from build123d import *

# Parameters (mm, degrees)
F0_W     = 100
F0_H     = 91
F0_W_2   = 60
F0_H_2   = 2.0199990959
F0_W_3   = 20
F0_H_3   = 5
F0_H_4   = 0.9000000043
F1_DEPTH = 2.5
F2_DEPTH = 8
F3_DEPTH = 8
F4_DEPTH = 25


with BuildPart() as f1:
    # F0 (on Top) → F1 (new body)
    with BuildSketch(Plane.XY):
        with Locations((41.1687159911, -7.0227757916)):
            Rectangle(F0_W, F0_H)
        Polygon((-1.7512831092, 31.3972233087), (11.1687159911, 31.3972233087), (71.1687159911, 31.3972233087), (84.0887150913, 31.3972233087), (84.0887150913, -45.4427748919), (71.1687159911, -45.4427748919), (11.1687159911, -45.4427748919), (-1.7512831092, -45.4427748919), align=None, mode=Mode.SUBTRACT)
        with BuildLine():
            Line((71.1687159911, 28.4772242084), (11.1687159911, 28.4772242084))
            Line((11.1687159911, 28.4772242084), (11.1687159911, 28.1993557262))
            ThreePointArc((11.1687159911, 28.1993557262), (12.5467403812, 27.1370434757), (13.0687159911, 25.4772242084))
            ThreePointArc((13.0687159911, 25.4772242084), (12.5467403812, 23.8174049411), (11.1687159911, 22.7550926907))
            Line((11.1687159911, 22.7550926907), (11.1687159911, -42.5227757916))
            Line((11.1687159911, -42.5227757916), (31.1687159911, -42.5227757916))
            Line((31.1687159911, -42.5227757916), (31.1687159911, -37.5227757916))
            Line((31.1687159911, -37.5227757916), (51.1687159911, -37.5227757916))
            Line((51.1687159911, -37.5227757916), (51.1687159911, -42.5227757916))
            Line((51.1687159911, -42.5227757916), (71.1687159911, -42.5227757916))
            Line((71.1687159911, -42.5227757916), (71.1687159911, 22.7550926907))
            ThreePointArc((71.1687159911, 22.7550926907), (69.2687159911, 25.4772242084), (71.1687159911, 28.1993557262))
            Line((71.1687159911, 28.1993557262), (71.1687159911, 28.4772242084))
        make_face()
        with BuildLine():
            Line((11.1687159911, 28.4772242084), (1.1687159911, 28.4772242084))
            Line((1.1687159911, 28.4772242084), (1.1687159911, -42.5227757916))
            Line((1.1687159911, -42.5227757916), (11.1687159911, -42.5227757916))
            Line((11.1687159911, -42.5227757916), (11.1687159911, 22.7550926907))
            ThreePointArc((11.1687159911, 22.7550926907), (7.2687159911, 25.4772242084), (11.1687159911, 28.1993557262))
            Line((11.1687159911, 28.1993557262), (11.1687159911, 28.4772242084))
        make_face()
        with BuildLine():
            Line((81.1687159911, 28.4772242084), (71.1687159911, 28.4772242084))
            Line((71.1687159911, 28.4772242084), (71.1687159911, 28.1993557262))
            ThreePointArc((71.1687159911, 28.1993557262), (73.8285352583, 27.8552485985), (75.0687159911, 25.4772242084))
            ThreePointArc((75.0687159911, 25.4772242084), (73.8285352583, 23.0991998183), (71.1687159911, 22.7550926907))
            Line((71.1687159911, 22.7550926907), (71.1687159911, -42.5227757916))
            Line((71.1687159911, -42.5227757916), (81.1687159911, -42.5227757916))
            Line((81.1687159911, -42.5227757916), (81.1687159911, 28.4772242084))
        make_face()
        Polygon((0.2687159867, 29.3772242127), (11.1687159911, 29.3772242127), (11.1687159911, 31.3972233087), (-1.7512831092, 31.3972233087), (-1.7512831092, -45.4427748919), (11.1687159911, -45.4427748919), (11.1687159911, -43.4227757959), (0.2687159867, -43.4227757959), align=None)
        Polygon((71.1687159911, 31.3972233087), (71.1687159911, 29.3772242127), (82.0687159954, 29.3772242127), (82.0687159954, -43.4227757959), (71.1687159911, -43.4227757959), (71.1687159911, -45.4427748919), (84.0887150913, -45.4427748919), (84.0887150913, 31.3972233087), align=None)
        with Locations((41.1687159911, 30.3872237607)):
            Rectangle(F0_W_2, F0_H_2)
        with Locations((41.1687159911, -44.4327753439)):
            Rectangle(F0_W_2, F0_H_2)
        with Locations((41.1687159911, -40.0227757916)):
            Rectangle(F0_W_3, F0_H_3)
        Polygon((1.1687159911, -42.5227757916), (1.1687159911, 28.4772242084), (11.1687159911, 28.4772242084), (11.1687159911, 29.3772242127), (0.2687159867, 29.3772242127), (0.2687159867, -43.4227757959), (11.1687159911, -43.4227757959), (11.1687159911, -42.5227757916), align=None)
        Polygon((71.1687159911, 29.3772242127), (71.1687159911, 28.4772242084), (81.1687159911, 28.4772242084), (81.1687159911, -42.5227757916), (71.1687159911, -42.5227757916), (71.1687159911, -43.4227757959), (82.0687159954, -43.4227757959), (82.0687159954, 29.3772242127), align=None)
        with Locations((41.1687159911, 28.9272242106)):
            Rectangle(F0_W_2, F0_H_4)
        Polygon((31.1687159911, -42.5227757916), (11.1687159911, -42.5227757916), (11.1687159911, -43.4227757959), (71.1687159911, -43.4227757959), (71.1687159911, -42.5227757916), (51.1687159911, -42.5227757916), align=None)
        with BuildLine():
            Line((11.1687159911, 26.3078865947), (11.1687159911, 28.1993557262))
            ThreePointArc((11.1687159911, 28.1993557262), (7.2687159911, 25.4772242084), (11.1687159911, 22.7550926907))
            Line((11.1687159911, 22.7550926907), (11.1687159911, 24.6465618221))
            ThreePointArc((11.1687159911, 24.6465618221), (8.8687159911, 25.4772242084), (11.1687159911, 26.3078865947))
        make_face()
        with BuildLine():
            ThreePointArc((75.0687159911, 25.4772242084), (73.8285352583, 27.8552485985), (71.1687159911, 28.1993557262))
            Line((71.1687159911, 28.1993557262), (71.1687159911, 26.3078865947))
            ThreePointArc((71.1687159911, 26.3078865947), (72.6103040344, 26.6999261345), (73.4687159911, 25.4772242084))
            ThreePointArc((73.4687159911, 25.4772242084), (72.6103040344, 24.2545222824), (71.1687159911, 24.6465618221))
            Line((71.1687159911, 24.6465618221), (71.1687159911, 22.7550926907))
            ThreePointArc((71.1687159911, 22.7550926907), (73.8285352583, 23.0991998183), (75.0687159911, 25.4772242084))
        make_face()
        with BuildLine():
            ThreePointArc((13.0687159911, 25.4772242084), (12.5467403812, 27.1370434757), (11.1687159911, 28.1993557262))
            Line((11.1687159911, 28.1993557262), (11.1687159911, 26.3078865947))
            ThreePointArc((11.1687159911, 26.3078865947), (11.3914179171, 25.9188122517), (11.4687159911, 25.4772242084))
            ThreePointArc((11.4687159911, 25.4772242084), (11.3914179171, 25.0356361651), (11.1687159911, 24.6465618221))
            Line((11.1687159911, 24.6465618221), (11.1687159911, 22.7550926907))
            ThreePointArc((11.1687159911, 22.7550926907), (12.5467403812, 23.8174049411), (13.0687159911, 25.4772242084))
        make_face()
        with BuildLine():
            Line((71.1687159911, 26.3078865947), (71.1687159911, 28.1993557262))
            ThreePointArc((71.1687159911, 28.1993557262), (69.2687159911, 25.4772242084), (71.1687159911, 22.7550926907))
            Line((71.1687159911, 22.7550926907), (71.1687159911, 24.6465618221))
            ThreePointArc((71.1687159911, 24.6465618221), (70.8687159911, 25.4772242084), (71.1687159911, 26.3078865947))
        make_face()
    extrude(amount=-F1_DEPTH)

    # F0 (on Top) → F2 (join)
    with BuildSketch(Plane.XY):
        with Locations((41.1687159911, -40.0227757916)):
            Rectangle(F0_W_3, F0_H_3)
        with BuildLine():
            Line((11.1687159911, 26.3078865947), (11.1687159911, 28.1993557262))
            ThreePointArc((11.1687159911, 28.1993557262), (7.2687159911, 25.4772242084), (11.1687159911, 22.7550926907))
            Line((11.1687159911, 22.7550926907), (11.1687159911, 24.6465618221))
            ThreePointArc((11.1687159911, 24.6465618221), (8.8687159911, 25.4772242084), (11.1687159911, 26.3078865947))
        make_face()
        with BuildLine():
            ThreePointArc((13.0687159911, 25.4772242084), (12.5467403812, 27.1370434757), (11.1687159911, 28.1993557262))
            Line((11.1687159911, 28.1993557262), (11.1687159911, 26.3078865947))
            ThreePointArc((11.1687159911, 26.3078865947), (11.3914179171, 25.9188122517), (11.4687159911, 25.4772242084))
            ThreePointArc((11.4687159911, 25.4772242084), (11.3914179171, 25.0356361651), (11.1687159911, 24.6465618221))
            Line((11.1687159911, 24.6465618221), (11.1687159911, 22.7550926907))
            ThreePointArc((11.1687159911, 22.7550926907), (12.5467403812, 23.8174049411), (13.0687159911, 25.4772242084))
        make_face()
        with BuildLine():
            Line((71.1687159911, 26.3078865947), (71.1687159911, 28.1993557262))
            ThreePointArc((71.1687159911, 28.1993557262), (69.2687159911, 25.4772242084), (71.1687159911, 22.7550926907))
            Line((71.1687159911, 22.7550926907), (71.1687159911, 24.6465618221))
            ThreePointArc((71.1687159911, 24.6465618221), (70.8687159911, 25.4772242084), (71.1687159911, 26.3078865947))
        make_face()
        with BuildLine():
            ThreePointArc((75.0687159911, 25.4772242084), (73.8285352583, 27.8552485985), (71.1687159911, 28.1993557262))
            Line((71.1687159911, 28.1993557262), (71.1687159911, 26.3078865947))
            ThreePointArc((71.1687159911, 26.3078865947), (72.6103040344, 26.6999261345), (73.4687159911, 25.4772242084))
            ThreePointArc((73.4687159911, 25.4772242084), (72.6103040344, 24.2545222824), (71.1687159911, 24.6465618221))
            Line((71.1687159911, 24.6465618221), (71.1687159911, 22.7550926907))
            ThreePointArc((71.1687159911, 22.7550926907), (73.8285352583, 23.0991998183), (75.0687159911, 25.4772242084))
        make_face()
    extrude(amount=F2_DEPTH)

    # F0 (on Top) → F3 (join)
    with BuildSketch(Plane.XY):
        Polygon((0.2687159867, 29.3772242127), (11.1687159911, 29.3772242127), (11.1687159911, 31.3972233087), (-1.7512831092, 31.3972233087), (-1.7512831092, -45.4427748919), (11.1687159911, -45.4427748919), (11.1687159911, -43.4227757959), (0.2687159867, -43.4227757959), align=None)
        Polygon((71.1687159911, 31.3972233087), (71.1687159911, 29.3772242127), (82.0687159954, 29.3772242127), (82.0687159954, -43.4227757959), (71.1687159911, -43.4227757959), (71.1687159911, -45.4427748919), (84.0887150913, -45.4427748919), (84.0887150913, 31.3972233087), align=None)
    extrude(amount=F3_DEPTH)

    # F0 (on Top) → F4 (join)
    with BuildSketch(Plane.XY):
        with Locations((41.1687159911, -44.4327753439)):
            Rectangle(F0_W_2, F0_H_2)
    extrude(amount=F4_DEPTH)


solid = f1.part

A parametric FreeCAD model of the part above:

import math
import FreeCAD as App
import Part
import Sketcher

V = App.Vector
Q = App.Units.Quantity

doc = App.newDocument("Part")
body = doc.addObject("PartDesign::Body", "Body")

# Sketch on XY plane
sketch1 = doc.addObject("Sketcher::SketchObject", "Sketch")
body.addObject(sketch1)
sketch1.AttachmentSupport = (doc.XY_Plane, [""])
sketch1.MapMode = "FlatFace"
sketch1.addGeometry(Part.LineSegment(V(-8.8, 38.5, 0), V(-8.8, -52.5, 0)), False)
sketch1.addGeometry(Part.LineSegment(V(-8.8, -52.5, 0), V(91.2, -52.5, 0)), False)
sketch1.addGeometry(Part.LineSegment(V(91.2, -52.5, 0), V(91.2, 38.5, 0)), False)
sketch1.addGeometry(Part.LineSegment(V(91.2, 38.5, 0), V(-8.8, 38.5, 0)), False)
sketch1.addGeometry(Part.ArcOfCircle(Part.Circle(V(10.2, 25.5, 0), V(0, 0, 1), 1.3), math.radians(40), math.radians(320)), False)
sketch1.addGeometry(Part.ArcOfCircle(Part.Circle(V(10.2, 25.5, 0), V(0, 0, 1), 1.3), math.radians(0), math.radians(40)), False)
sketch1.addGeometry(Part.ArcOfCircle(Part.Circle(V(10.2, 25.5, 0), V(0, 0, 1), 1.3), math.radians(-40), math.radians(0)), False)
sketch1.addGeometry(Part.ArcOfCircle(Part.Circle(V(72.2, 25.5, 0), V(0, 0, 1), 1.3), math.radians(0), math.radians(140)), False)
sketch1.addGeometry(Part.ArcOfCircle(Part.Circle(V(72.2, 25.5, 0), V(0, 0, 1), 1.3), math.radians(-140), math.radians(0)), False)
sketch1.addGeometry(Part.ArcOfCircle(Part.Circle(V(72.2, 25.5, 0), V(0, 0, 1), 1.3), math.radians(140), math.radians(220)), False)
sketch1.addConstraint(Sketcher.Constraint("Coincident", 0, 2, 1, 1))
sketch1.addConstraint(Sketcher.Constraint("Coincident", 1, 2, 2, 1))
sketch1.addConstraint(Sketcher.Constraint("Coincident", 2, 2, 3, 1))
sketch1.addConstraint(Sketcher.Constraint("Coincident", 3, 2, 0, 1))
sketch1.addConstraint(Sketcher.Constraint("Tangent", 4, 1, 5, 2))
sketch1.addConstraint(Sketcher.Constraint("Tangent", 5, 1, 6, 2))
sketch1.addConstraint(Sketcher.Constraint("Tangent", 6, 1, 4, 2))
sketch1.addConstraint(Sketcher.Constraint("Tangent", 7, 1, 8, 2))
sketch1.addConstraint(Sketcher.Constraint("Tangent", 8, 1, 9, 2))
sketch1.addConstraint(Sketcher.Constraint("Tangent", 9, 1, 7, 2))
sketch1.addConstraint(Sketcher.Constraint("Vertical", 0))
sketch1.addConstraint(Sketcher.Constraint("Horizontal", 1))
sketch1.addConstraint(Sketcher.Constraint("Vertical", 2))
sketch1.addConstraint(Sketcher.Constraint("Horizontal", 3))
sketch1.addConstraint(Sketcher.Constraint("Equal", 6, 7))
sketch1.addConstraint(Sketcher.Constraint("Horizontal", 6, 3, 7, 3))
sketch1.addConstraint(Sketcher.Constraint("Horizontal", 9, 3, 5, 1))
sketch1.addConstraint(Sketcher.Constraint("Horizontal", 5, 1, 7, 1))
sketch1.addConstraint(Sketcher.Constraint("Horizontal", 6, 1, 8, 1))
sketch1.addConstraint(Sketcher.Constraint("Horizontal", 4, 1, 9, 1))
sketch1.addConstraint(Sketcher.Constraint("Vertical", 4, 1, 6, 1))
sketch1.addConstraint(Sketcher.Constraint("Radius", 4, Q("1.3 mm")))
sketch1.addConstraint(Sketcher.Constraint("DistanceX", 1, 1, 1, 2, Q("100 mm")))
sketch1.addConstraint(Sketcher.Constraint("DistanceY", 0, 2, 0, 1, Q("91 mm")))
sketch1.addConstraint(Sketcher.Constraint("DistanceX", 4, 3, 7, 3, Q("62 mm")))
sketch1.addConstraint(Sketcher.Constraint("DistanceX", 0, 2, 5, 3, Q("19 mm")))
sketch1.addConstraint(Sketcher.Constraint("DistanceY", 0, 2, 5, 3, Q("78 mm")))
sketch1.addConstraint(Sketcher.Constraint("DistanceX", 4, 3, 4, 1, Q("1 mm")))
sketch1.addConstraint(Sketcher.Constraint("DistanceY", -1, 1, 6, 1, Q("24.646562 mm")))
sketch1.addConstraint(Sketcher.Constraint("DistanceX", -1, 1, 4, 3, Q("10.168716 mm")))
pad1 = doc.addObject("PartDesign::Pad", "Pad")
body.addObject(pad1)
pad1.Profile = sketch1
pad1.Length = 2.5
pad1.Reversed = True

# Sketch on XY plane
sketch2 = doc.addObject("Sketcher::SketchObject", "Sketch001")
body.addObject(sketch2)
sketch2.AttachmentSupport = (doc.XY_Plane, [""])
sketch2.MapMode = "FlatFace"
sketch2.addGeometry(Part.LineSegment(V(31.2, -37.5, 0), V(31.2, -42.5, 0)), False)
sketch2.addGeometry(Part.LineSegment(V(31.2, -42.5, 0), V(51.2, -42.5, 0)), False)
sketch2.addGeometry(Part.LineSegment(V(51.2, -42.5, 0), V(51.2, -37.5, 0)), False)
sketch2.addGeometry(Part.LineSegment(V(51.2, -37.5, 0), V(31.2, -37.5, 0)), False)
sketch2.addGeometry(Part.ArcOfCircle(Part.Circle(V(10.2, 25.5, 0), V(0, 0, 1), 2.9), math.radians(70), math.radians(290)), False)
sketch2.addGeometry(Part.ArcOfCircle(Part.Circle(V(10.2, 25.5, 0), V(0, 0, 1), 2.9), math.radians(-70), math.radians(0)), False)
sketch2.addGeometry(Part.ArcOfCircle(Part.Circle(V(10.2, 25.5, 0), V(0, 0, 1), 2.9), math.radians(0), math.radians(70)), False)
sketch2.addGeometry(Part.ArcOfCircle(Part.Circle(V(10.2, 25.5, 0), V(0, 0, 1), 1.3), math.radians(40), math.radians(320)), False)
sketch2.addGeometry(Part.ArcOfCircle(Part.Circle(V(10.2, 25.5, 0), V(0, 0, 1), 1.3), math.radians(0), math.radians(40)), False)
sketch2.addGeometry(Part.ArcOfCircle(Part.Circle(V(10.2, 25.5, 0), V(0, 0, 1), 1.3), math.radians(-40), math.radians(0)), False)
sketch2.addGeometry(Part.ArcOfCircle(Part.Circle(V(72.2, 25.5, 0), V(0, 0, 1), 2.9), math.radians(110), math.radians(250)), False)
sketch2.addGeometry(Part.ArcOfCircle(Part.Circle(V(72.2, 25.5, 0), V(0, 0, 1), 2.9), math.radians(-110), math.radians(0)), False)
sketch2.addGeometry(Part.ArcOfCircle(Part.Circle(V(72.2, 25.5, 0), V(0, 0, 1), 2.9), math.radians(0), math.radians(110)), False)
sketch2.addGeometry(Part.ArcOfCircle(Part.Circle(V(72.2, 25.5, 0), V(0, 0, 1), 1.3), math.radians(140), math.radians(220)), False)
sketch2.addGeometry(Part.ArcOfCircle(Part.Circle(V(72.2, 25.5, 0), V(0, 0, 1), 1.3), math.radians(0), math.radians(140)), False)
sketch2.addGeometry(Part.ArcOfCircle(Part.Circle(V(72.2, 25.5, 0), V(0, 0, 1), 1.3), math.radians(-140), math.radians(0)), False)
sketch2.addConstraint(Sketcher.Constraint("Coincident", 0, 2, 1, 1))
sketch2.addConstraint(Sketcher.Constraint("Coincident", 1, 2, 2, 1))
sketch2.addConstraint(Sketcher.Constraint("Coincident", 2, 2, 3, 1))
sketch2.addConstraint(Sketcher.Constraint("Coincident", 3, 2, 0, 1))
sketch2.addConstraint(Sketcher.Constraint("Tangent", 4, 2, 5, 1))
sketch2.addConstraint(Sketcher.Constraint("Tangent", 5, 2, 6, 1))
sketch2.addConstraint(Sketcher.Constraint("Tangent", 6, 2, 4, 1))
sketch2.addConstraint(Sketcher.Constraint("Tangent", 7, 1, 8, 2))
sketch2.addConstraint(Sketcher.Constraint("Tangent", 8, 1, 9, 2))
sketch2.addConstraint(Sketcher.Constraint("Tangent", 9, 1, 7, 2))
sketch2.addConstraint(Sketcher.Constraint("Tangent", 10, 2, 11, 1))
sketch2.addConstraint(Sketcher.Constraint("Tangent", 11, 2, 12, 1))
sketch2.addConstraint(Sketcher.Constraint("Tangent", 12, 2, 10, 1))
sketch2.addConstraint(Sketcher.Constraint("Tangent", 13, 1, 14, 2))
sketch2.addConstraint(Sketcher.Constraint("Tangent", 14, 1, 15, 2))
sketch2.addConstraint(Sketcher.Constraint("Tangent", 15, 1, 13, 2))
sketch2.addConstraint(Sketcher.Constraint("Vertical", 0))
sketch2.addConstraint(Sketcher.Constraint("Horizontal", 1))
sketch2.addConstraint(Sketcher.Constraint("Vertical", 2))
sketch2.addConstraint(Sketcher.Constraint("Horizontal", 3))
sketch2.addConstraint(Sketcher.Constraint("Coincident", 7, 3, 4, 3))
sketch2.addConstraint(Sketcher.Constraint("Coincident", 13, 3, 10, 3))
sketch2.addConstraint(Sketcher.Constraint("Equal", 6, 10))
sketch2.addConstraint(Sketcher.Constraint("Equal", 9, 13))
sketch2.addConstraint(Sketcher.Constraint("Horizontal", 9, 3, 10, 3))
sketch2.addConstraint(Sketcher.Constraint("Horizontal", 15, 3, 5, 2))
sketch2.addConstraint(Sketcher.Constraint("Horizontal", 5, 2, 8, 1))
sketch2.addConstraint(Sketcher.Constraint("Horizontal", 4, 2, 10, 2))
sketch2.addConstraint(Sketcher.Constraint("Horizontal", 8, 1, 11, 2))
sketch2.addConstraint(Sketcher.Constraint("Horizontal", 6, 2, 12, 2))
sketch2.addConstraint(Sketcher.Constraint("Horizontal", 7, 1, 13, 1))
sketch2.addConstraint(Sketcher.Constraint("Horizontal", 11, 2, 14, 1))
sketch2.addConstraint(Sketcher.Constraint("Horizontal", 9, 1, 15, 1))
sketch2.addConstraint(Sketcher.Constraint("Vertical", 4, 2, 6, 2))
sketch2.addConstraint(Sketcher.Constraint("Vertical", 6, 2, 7, 1))
sketch2.addConstraint(Sketcher.Constraint("Vertical", 7, 1, 9, 1))
sketch2.addConstraint(Sketcher.Constraint("Radius", 4, Q("2.9 mm")))
sketch2.addConstraint(Sketcher.Constraint("Radius", 7, Q("1.3 mm")))
sketch2.addConstraint(Sketcher.Constraint("DistanceX", 1, 1, 1, 2, Q("20 mm")))
sketch2.addConstraint(Sketcher.Constraint("DistanceY", 0, 2, 0, 1, Q("5 mm")))
sketch2.addConstraint(Sketcher.Constraint("DistanceX", 4, 3, 10, 3, Q("62 mm")))
sketch2.addConstraint(Sketcher.Constraint("DistanceX", 4, 3, 0, 2, Q("21 mm")))
sketch2.addConstraint(Sketcher.Constraint("DistanceY", 0, 2, 4, 3, Q("68 mm")))
sketch2.addConstraint(Sketcher.Constraint("DistanceX", 4, 3, 4, 2, Q("1 mm")))
sketch2.addConstraint(Sketcher.Constraint("DistanceY", -1, 1, 9, 1, Q("24.646562 mm")))
sketch2.addConstraint(Sketcher.Constraint("DistanceX", -1, 1, 4, 3, Q("10.168716 mm")))
pad2 = doc.addObject("PartDesign::Pad", "Pad001")
body.addObject(pad2)
pad2.Profile = sketch2
pad2.Length = 8

# Sketch on XY plane
sketch3 = doc.addObject("Sketcher::SketchObject", "Sketch002")
body.addObject(sketch3)
sketch3.AttachmentSupport = (doc.XY_Plane, [""])
sketch3.MapMode = "FlatFace"
sketch3.addGeometry(Part.LineSegment(V(0.3, 29.4, 0), V(11.2, 29.4, 0)), False)
sketch3.addGeometry(Part.LineSegment(V(11.2, 29.4, 0), V(11.2, 31.4, 0)), False)
sketch3.addGeometry(Part.LineSegment(V(11.2, 31.4, 0), V(-1.8, 31.4, 0)), False)
sketch3.addGeometry(Part.LineSegment(V(-1.8, 31.4, 0), V(-1.8, -45.4, 0)), False)
sketch3.addGeometry(Part.LineSegment(V(-1.8, -45.4, 0), V(11.2, -45.4, 0)), False)
sketch3.addGeometry(Part.LineSegment(V(11.2, -45.4, 0), V(11.2, -43.4, 0)), False)
sketch3.addGeometry(Part.LineSegment(V(11.2, -43.4, 0), V(0.3, -43.4, 0)), False)
sketch3.addGeometry(Part.LineSegment(V(0.3, -43.4, 0), V(0.3, 29.4, 0)), False)
sketch3.addGeometry(Part.LineSegment(V(71.2, 31.4, 0), V(71.2, 29.4, 0)), False)
sketch3.addGeometry(Part.LineSegment(V(71.2, 29.4, 0), V(82.1, 29.4, 0)), False)
sketch3.addGeometry(Part.LineSegment(V(82.1, 29.4, 0), V(82.1, -43.4, 0)), False)
sketch3.addGeometry(Part.LineSegment(V(82.1, -43.4, 0), V(71.2, -43.4, 0)), False)
sketch3.addGeometry(Part.LineSegment(V(71.2, -43.4, 0), V(71.2, -45.4, 0)), False)
sketch3.addGeometry(Part.LineSegment(V(71.2, -45.4, 0), V(84.1, -45.4, 0)), False)
sketch3.addGeometry(Part.LineSegment(V(84.1, -45.4, 0), V(84.1, 31.4, 0)), False)
sketch3.addGeometry(Part.LineSegment(V(84.1, 31.4, 0), V(71.2, 31.4, 0)), False)
sketch3.addConstraint(Sketcher.Constraint("Coincident", 0, 2, 1, 1))
sketch3.addConstraint(Sketcher.Constraint("Coincident", 1, 2, 2, 1))
sketch3.addConstraint(Sketcher.Constraint("Coincident", 2, 2, 3, 1))
sketch3.addConstraint(Sketcher.Constraint("Coincident", 3, 2, 4, 1))
sketch3.addConstraint(Sketcher.Constraint("Coincident", 4, 2, 5, 1))
sketch3.addConstraint(Sketcher.Constraint("Coincident", 5, 2, 6, 1))
sketch3.addConstraint(Sketcher.Constraint("Coincident", 6, 2, 7, 1))
sketch3.addConstraint(Sketcher.Constraint("Coincident", 7, 2, 0, 1))
sketch3.addConstraint(Sketcher.Constraint("Coincident", 8, 2, 9, 1))
sketch3.addConstraint(Sketcher.Constraint("Coincident", 9, 2, 10, 1))
sketch3.addConstraint(Sketcher.Constraint("Coincident", 10, 2, 11, 1))
sketch3.addConstraint(Sketcher.Constraint("Coincident", 11, 2, 12, 1))
sketch3.addConstraint(Sketcher.Constraint("Coincident", 12, 2, 13, 1))
sketch3.addConstraint(Sketcher.Constraint("Coincident", 13, 2, 14, 1))
sketch3.addConstraint(Sketcher.Constraint("Coincident", 14, 2, 15, 1))
sketch3.addConstraint(Sketcher.Constraint("Coincident", 15, 2, 8, 1))
sketch3.addConstraint(Sketcher.Constraint("Horizontal", 0))
sketch3.addConstraint(Sketcher.Constraint("Vertical", 1))
sketch3.addConstraint(Sketcher.Constraint("Horizontal", 2))
sketch3.addConstraint(Sketcher.Constraint("Vertical", 3))
sketch3.addConstraint(Sketcher.Constraint("Horizontal", 4))
sketch3.addConstraint(Sketcher.Constraint("Vertical", 5))
sketch3.addConstraint(Sketcher.Constraint("Horizontal", 6))
sketch3.addConstraint(Sketcher.Constraint("Vertical", 7))
sketch3.addConstraint(Sketcher.Constraint("Vertical", 8))
sketch3.addConstraint(Sketcher.Constraint("Horizontal", 9))
sketch3.addConstraint(Sketcher.Constraint("Vertical", 10))
sketch3.addConstraint(Sketcher.Constraint("Horizontal", 11))
sketch3.addConstraint(Sketcher.Constraint("Vertical", 12))
sketch3.addConstraint(Sketcher.Constraint("Horizontal", 13))
sketch3.addConstraint(Sketcher.Constraint("Vertical", 14))
sketch3.addConstraint(Sketcher.Constraint("Horizontal", 15))
sketch3.addConstraint(Sketcher.Constraint("Horizontal", 7, 2, 8, 2))
sketch3.addConstraint(Sketcher.Constraint("Horizontal", 6, 2, 10, 2))
sketch3.addConstraint(Sketcher.Constraint("Horizontal", 4, 2, 12, 2))
sketch3.addConstraint(Sketcher.Constraint("Horizontal", 2, 2, 14, 2))
sketch3.addConstraint(Sketcher.Constraint("Vertical", 1, 2, 4, 2))
sketch3.addConstraint(Sketcher.Constraint("Vertical", 8, 2, 11, 2))
sketch3.addConstraint(Sketcher.Constraint("Equal", 6, 9))
sketch3.addConstraint(Sketcher.Constraint("Equal", 4, 13))
sketch3.addConstraint(Sketcher.Constraint("Equal", 1, 5))
sketch3.addConstraint(Sketcher.Constraint("DistanceX", 0, 1, 0, 2, Q("10.9 mm")))
sketch3.addConstraint(Sketcher.Constraint("DistanceY", 7, 1, 7, 2, Q("72.8 mm")))
sketch3.addConstraint(Sketcher.Constraint("DistanceX", 0, 2, 8, 2, Q("60 mm")))
sketch3.addConstraint(Sketcher.Constraint("DistanceX", 2, 2, 2, 1, Q("12.919999 mm")))
sketch3.addConstraint(Sketcher.Constraint("DistanceY", 1, 1, 1, 2, Q("2.019999 mm")))
sketch3.addConstraint(Sketcher.Constraint("DistanceX", -1, 1, 0, 2, Q("11.168716 mm")))
sketch3.addConstraint(Sketcher.Constraint("DistanceY", -1, 1, 0, 2, Q("29.377224 mm")))
pad3 = doc.addObject("PartDesign::Pad", "Pad002")
body.addObject(pad3)
pad3.Profile = sketch3
pad3.Length = 8

# Sketch on XY plane
sketch4 = doc.addObject("Sketcher::SketchObject", "Sketch003")
body.addObject(sketch4)
sketch4.AttachmentSupport = (doc.XY_Plane, [""])
sketch4.MapMode = "FlatFace"
sketch4.addGeometry(Part.LineSegment(V(11.2, -43.4, 0), V(11.2, -45.4, 0)), False)
sketch4.addGeometry(Part.LineSegment(V(11.2, -45.4, 0), V(71.2, -45.4, 0)), False)
sketch4.addGeometry(Part.LineSegment(V(71.2, -45.4, 0), V(71.2, -43.4, 0)), False)
sketch4.addGeometry(Part.LineSegment(V(71.2, -43.4, 0), V(11.2, -43.4, 0)), False)
sketch4.addConstraint(Sketcher.Constraint("Coincident", 0, 2, 1, 1))
sketch4.addConstraint(Sketcher.Constraint("Coincident", 1, 2, 2, 1))
sketch4.addConstraint(Sketcher.Constraint("Coincident", 2, 2, 3, 1))
sketch4.addConstraint(Sketcher.Constraint("Coincident", 3, 2, 0, 1))
sketch4.addConstraint(Sketcher.Constraint("Vertical", 0))
sketch4.addConstraint(Sketcher.Constraint("Horizontal", 1))
sketch4.addConstraint(Sketcher.Constraint("Vertical", 2))
sketch4.addConstraint(Sketcher.Constraint("Horizontal", 3))
sketch4.addConstraint(Sketcher.Constraint("DistanceX", 1, 1, 1, 2, Q("60 mm")))
sketch4.addConstraint(Sketcher.Constraint("DistanceY", 0, 2, 0, 1, Q("2.019999 mm")))
sketch4.addConstraint(Sketcher.Constraint("DistanceX", -1, 1, 0, 2, Q("11.168716 mm")))
sketch4.addConstraint(Sketcher.Constraint("DistanceY", 0, 2, -1, 1, Q("45.442775 mm")))
pad4 = doc.addObject("PartDesign::Pad", "Pad003")
body.addObject(pad4)
pad4.Profile = sketch4
pad4.Length = 25

doc.recompute()
